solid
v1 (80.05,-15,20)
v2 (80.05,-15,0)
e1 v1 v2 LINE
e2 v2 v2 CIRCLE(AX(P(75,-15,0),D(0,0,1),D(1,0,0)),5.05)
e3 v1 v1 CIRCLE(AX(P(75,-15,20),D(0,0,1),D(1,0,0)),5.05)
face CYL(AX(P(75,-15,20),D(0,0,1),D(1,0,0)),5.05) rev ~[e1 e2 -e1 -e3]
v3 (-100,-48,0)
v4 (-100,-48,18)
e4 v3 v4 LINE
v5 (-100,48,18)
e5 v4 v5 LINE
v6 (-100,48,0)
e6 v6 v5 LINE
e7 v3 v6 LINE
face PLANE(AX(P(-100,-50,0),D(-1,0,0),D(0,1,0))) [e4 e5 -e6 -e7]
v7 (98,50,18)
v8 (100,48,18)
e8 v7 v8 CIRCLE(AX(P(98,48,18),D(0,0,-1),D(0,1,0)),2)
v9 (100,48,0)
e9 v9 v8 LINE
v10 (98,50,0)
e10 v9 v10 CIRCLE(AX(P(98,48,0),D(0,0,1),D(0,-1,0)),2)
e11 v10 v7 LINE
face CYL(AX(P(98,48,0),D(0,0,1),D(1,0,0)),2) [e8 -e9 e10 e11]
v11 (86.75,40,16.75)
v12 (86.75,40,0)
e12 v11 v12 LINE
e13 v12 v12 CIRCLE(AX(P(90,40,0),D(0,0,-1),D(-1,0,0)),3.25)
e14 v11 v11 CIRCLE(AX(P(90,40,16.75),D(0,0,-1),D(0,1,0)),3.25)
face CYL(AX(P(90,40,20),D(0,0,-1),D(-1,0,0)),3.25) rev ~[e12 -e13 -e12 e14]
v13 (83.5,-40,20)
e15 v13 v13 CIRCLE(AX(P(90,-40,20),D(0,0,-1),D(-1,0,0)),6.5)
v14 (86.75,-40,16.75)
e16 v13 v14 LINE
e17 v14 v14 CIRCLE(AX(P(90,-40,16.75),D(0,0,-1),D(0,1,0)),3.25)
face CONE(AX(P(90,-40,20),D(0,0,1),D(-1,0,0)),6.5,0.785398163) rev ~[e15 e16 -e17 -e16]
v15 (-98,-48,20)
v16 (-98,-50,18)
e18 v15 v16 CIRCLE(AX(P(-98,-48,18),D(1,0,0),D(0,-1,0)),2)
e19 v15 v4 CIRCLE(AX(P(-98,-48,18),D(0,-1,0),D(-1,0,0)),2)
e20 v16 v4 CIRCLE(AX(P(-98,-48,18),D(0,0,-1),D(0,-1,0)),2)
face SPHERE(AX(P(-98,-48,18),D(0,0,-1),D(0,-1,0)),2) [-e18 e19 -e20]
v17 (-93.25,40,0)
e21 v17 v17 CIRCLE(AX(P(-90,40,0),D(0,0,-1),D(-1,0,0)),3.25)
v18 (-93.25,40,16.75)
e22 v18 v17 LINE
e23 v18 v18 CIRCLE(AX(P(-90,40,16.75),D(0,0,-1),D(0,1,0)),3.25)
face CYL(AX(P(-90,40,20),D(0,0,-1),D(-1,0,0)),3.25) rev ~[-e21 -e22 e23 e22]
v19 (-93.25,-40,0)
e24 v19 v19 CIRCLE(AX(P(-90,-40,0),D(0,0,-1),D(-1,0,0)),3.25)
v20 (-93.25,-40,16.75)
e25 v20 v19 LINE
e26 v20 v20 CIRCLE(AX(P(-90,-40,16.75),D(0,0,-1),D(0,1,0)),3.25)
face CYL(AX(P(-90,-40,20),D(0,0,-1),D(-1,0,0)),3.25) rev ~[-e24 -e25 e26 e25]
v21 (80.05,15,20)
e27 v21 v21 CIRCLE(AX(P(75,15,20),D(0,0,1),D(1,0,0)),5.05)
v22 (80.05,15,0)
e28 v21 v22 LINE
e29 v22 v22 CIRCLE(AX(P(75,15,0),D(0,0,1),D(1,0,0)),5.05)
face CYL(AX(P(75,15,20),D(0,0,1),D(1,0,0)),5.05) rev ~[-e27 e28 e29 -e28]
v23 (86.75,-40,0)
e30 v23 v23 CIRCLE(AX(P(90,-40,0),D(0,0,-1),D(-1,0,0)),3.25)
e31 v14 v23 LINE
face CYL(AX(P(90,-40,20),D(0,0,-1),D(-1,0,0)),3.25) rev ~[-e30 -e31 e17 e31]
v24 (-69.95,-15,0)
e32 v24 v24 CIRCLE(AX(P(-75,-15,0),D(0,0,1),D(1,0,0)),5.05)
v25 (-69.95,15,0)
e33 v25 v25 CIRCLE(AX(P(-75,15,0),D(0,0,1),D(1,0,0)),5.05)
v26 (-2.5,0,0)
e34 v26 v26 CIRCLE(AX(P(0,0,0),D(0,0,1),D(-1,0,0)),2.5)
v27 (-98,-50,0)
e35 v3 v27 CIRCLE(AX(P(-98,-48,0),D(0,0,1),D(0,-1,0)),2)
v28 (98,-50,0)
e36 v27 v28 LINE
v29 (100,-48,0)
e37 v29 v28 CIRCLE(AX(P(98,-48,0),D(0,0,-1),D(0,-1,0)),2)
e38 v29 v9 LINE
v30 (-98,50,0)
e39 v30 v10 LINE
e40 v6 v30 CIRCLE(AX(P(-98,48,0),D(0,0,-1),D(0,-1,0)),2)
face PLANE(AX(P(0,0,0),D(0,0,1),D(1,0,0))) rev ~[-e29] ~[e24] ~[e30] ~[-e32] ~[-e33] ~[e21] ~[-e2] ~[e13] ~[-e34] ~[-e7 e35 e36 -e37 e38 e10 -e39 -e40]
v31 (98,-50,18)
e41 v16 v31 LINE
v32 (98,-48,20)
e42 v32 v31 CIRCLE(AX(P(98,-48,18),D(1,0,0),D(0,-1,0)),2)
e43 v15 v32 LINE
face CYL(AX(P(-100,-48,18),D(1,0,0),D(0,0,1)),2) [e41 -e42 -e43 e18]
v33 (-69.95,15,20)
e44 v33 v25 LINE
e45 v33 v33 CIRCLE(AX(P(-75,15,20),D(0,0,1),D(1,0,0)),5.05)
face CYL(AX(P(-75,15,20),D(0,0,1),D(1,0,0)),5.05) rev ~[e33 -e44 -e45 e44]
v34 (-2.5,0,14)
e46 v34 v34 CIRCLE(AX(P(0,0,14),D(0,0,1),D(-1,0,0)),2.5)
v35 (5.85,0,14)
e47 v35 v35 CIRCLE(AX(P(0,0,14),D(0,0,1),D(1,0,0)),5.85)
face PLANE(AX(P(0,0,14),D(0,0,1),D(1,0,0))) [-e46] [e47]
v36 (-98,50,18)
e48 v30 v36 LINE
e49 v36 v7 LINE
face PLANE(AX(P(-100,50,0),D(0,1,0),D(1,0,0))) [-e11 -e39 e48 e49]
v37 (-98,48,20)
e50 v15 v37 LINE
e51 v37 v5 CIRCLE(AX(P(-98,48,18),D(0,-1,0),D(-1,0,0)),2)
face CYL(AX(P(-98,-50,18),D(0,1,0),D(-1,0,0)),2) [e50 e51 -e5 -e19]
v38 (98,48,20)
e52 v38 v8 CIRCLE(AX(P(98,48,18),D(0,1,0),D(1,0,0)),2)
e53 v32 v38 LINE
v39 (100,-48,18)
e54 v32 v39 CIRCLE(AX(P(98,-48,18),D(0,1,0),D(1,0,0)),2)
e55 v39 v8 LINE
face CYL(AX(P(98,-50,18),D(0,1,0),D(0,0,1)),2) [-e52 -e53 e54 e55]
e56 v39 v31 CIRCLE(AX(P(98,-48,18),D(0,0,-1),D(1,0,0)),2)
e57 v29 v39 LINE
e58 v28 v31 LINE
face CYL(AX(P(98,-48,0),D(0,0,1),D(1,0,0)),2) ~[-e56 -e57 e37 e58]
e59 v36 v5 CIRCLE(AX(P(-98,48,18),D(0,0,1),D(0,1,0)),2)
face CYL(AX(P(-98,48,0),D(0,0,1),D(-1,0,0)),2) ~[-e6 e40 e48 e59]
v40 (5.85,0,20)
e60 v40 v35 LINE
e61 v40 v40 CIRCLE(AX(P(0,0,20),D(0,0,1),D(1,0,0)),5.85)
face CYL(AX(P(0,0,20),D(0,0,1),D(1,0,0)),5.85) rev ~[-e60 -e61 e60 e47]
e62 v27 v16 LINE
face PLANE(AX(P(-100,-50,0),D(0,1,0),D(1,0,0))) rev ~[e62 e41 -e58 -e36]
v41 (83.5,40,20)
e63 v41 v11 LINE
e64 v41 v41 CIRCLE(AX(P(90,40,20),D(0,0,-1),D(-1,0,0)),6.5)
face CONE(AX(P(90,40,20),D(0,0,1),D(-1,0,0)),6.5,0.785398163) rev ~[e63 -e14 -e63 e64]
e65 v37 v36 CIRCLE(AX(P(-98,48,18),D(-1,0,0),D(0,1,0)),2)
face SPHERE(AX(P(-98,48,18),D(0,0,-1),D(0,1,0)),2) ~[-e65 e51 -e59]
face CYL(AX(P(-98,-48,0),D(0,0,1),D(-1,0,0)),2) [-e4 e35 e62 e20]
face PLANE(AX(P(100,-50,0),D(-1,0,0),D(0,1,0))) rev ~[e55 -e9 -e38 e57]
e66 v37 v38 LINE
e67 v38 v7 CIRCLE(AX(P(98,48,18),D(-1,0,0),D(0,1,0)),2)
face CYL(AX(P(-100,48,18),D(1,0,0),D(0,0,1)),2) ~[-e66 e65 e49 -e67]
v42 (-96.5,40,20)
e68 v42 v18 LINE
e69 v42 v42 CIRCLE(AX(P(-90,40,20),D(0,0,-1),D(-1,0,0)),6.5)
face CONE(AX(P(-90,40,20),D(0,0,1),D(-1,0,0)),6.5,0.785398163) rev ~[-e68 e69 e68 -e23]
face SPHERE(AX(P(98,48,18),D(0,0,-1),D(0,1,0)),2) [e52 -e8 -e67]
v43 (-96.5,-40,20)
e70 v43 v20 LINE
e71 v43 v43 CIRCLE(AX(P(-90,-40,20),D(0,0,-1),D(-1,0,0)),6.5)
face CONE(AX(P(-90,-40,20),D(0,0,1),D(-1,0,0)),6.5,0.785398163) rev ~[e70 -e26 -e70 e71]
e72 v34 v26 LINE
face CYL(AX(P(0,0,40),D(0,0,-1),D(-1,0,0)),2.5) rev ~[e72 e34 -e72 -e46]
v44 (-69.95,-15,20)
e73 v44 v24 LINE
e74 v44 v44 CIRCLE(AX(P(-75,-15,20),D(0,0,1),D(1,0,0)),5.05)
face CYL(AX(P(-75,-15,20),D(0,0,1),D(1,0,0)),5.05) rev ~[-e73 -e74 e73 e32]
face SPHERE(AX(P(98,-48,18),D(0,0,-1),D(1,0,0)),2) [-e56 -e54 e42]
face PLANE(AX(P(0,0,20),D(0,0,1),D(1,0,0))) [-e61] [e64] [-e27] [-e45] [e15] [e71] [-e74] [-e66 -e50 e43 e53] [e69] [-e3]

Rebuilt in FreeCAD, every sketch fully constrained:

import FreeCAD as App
import Part
import Sketcher
Q = App.Units.Quantity


def edges_at(feature, points):
    """Names of the edges that pass closest to the given points."""
    edges = feature.Shape.Edges
    near = lambda p: min(range(len(edges)), key=lambda i: edges[i].distToShape(Part.Vertex(*p))[0])
    return sorted({f"Edge{near(p) + 1}" for p in points})


def add_polygon(sketch, points):
    """Adds a closed chain of lines whose ends are joined by coincident constraints."""
    first, n = sketch.GeometryCount, len(points)
    for a, b in zip(points, points[1:] + points[:1]):
        sketch.addGeometry(Part.LineSegment(App.Vector(*a, 0), App.Vector(*b, 0)), False)
    for i in range(n):
        sketch.addConstraint(Sketcher.Constraint("Coincident", first + i, 2, first + (i + 1) % n, 1))

doc = App.newDocument("Part")
body = doc.addObject("PartDesign::Body", "Body")

# Sketch on XY plane
sketch1 = body.newObject("Sketcher::SketchObject", "Sketch")
sketch1.AttachmentSupport = (doc.getObject("XY_Plane"), [""])
sketch1.MapMode = "FlatFace"
add_polygon(sketch1, [(-100, 50), (-100, -50), (100, -50), (100, 50)])  # lines 0-3
sketch1.addConstraint(Sketcher.Constraint("Vertical", 0))
sketch1.addConstraint(Sketcher.Constraint("Horizontal", 1))
sketch1.addConstraint(Sketcher.Constraint("Vertical", 2))
sketch1.addConstraint(Sketcher.Constraint("Horizontal", 3))
sketch1.addConstraint(Sketcher.Constraint("Symmetric", 0, 2, 2, 2, -1, 1))
sketch1.addConstraint(Sketcher.Constraint("DistanceX", 1, 1, 1, 2, Q("200 mm")))
sketch1.addConstraint(Sketcher.Constraint("DistanceY", 0, 2, 0, 1, Q("100 mm")))
pad1 = body.newObject("PartDesign::Pad", "Pad")
pad1.Profile = sketch1
pad1.Length = 20

# Sketch on XY plane
sketch2 = body.newObject("Sketcher::SketchObject", "Sketch001")
sketch2.AttachmentSupport = (doc.getObject("XY_Plane"), [""])
sketch2.MapMode = "FlatFace"
sketch2.AttachmentOffset = App.Placement(App.Vector(0, 0, 20), App.Rotation())
sketch2.addGeometry(Part.Circle(App.Vector(-75, 15, 0), App.Vector(0, 0, 1), 5), False)
sketch2.addGeometry(Part.Circle(App.Vector(-75, -15, 0), App.Vector(0, 0, 1), 5), False)
sketch2.addGeometry(Part.Circle(App.Vector(75, -15, 0), App.Vector(0, 0, 1), 5), False)
sketch2.addGeometry(Part.Circle(App.Vector(75, 15, 0), App.Vector(0, 0, 1), 5), False)
sketch2.addConstraint(Sketcher.Constraint("Equal", 0, 1))
sketch2.addConstraint(Sketcher.Constraint("Equal", 1, 2))
sketch2.addConstraint(Sketcher.Constraint("Equal", 2, 3))
sketch2.addConstraint(Sketcher.Constraint("Symmetric", 0, 3, 2, 3, -1, 1))
sketch2.addConstraint(Sketcher.Constraint("Symmetric", 1, 3, 3, 3, -1, 1))
sketch2.addConstraint(Sketcher.Constraint("Symmetric", 1, 3, 2, 3, -2))
sketch2.addConstraint(Sketcher.Constraint("Diameter", 0, Q("10.1 mm")))
sketch2.addConstraint(Sketcher.Constraint("DistanceX", 0, 3, -1, 1, Q("75 mm")))
sketch2.addConstraint(Sketcher.Constraint("DistanceY", -1, 1, 0, 3, Q("15 mm")))
pocket1 = body.newObject("PartDesign::Pocket", "Pocket")
pocket1.Profile = sketch2
pocket1.Type = "ThroughAll"

# Sketch on XY plane
sketch3 = body.newObject("Sketcher::SketchObject", "Sketch002")
sketch3.AttachmentSupport = (doc.getObject("XY_Plane"), [""])
sketch3.MapMode = "FlatFace"
sketch3.AttachmentOffset = App.Placement(App.Vector(0, 0, 20), App.Rotation())
sketch3.addGeometry(Part.Circle(App.Vector(-90, 40, 0), App.Vector(0, 0, 1), 3.2), False)
sketch3.addGeometry(Part.Circle(App.Vector(90, 40, 0), App.Vector(0, 0, 1), 3.2), False)
sketch3.addGeometry(Part.Circle(App.Vector(90, -40, 0), App.Vector(0, 0, 1), 3.2), False)
sketch3.addGeometry(Part.Circle(App.Vector(-90, -40, 0), App.Vector(0, 0, 1), 3.2), False)
sketch3.addConstraint(Sketcher.Constraint("Equal", 0, 1))
sketch3.addConstraint(Sketcher.Constraint("Equal", 1, 2))
sketch3.addConstraint(Sketcher.Constraint("Equal", 2, 3))
sketch3.addConstraint(Sketcher.Constraint("Symmetric", 0, 3, 2, 3, -1, 1))
sketch3.addConstraint(Sketcher.Constraint("Symmetric", 1, 3, 3, 3, -1, 1))
sketch3.addConstraint(Sketcher.Constraint("Symmetric", 0, 3, 1, 3, -2))
sketch3.addConstraint(Sketcher.Constraint("Diameter", 0, Q("6.5 mm")))
sketch3.addConstraint(Sketcher.Constraint("DistanceX", 0, 3, -1, 1, Q("90 mm")))
sketch3.addConstraint(Sketcher.Constraint("DistanceY", -1, 1, 0, 3, Q("40 mm")))
doc.recompute()
hole = body.newObject("PartDesign::Hole", "Hole")
hole.Profile = sketch3
hole.ThreadType = "None"
hole.Diameter = 6.5
hole.DepthType = "Dimension"
hole.Depth = 25
hole.DrillPoint = "Angled"
hole.DrillPointAngle = 118
hole.HoleCutType = "Countersink"
hole.HoleCutDiameter = 13
hole.HoleCutCountersinkAngle = 90

# Sketch on XY plane
sketch4 = body.newObject("Sketcher::SketchObject", "Sketch003")
sketch4.AttachmentSupport = (doc.getObject("XY_Plane"), [""])
sketch4.MapMode = "FlatFace"
sketch4.AttachmentOffset = App.Placement(App.Vector(0, 0, 20), App.Rotation())
sketch4.addGeometry(Part.Circle(App.Vector(0, 0, 0), App.Vector(0, 0, 1), 2.5), False)
sketch4.addConstraint(Sketcher.Constraint("Coincident", 0, 3, -1, 1))
sketch4.addConstraint(Sketcher.Constraint("Diameter", 0, Q("5 mm")))
doc.recompute()
hole2 = body.newObject("PartDesign::Hole", "Hole001")
hole2.Profile = sketch4
hole2.ThreadType = "None"
hole2.Diameter = 5
hole2.DepthType = "Dimension"
hole2.Depth = 20
hole2.DrillPoint = "Angled"
hole2.DrillPointAngle = 118

# Sketch on XY plane
sketch5 = body.newObject("Sketcher::SketchObject", "Sketch004")
sketch5.AttachmentSupport = (doc.getObject("XY_Plane"), [""])
sketch5.MapMode = "FlatFace"
sketch5.AttachmentOffset = App.Placement(App.Vector(0, 0, 20), App.Rotation())
sketch5.addGeometry(Part.Circle(App.Vector(0, 0, 0), App.Vector(0, 0, 1), 5.8), False)
sketch5.addGeometry(Part.Circle(App.Vector(0, 0, 0), App.Vector(0, 0, 1), 2.5), False)
sketch5.addConstraint(Sketcher.Constraint("Coincident", 0, 3, -1, 1))
sketch5.addConstraint(Sketcher.Constraint("Coincident", 1, 3, -1, 1))
sketch5.addConstraint(Sketcher.Constraint("Diameter", 1, Q("5 mm")))
sketch5.addConstraint(Sketcher.Constraint("Diameter", 0, Q("11.7 mm")))
pocket2 = body.newObject("PartDesign::Pocket", "Pocket001")
pocket2.Profile = sketch5
pocket2.Length = 6
doc.recompute()

fillet = body.newObject("PartDesign::Fillet", "Fillet")
fillet.Base = (pocket2, edges_at(pocket2, [
    (-100, -50, 10),
    (100, -50, 10),
    (100, 50, 10),
    (-100, 50, 10),
    (0, 50, 20),
    (100, 0, 20),
    (0, -50, 20),
    (-100, 0, 20),
]))
fillet.Radius = 2

doc.recompute()
